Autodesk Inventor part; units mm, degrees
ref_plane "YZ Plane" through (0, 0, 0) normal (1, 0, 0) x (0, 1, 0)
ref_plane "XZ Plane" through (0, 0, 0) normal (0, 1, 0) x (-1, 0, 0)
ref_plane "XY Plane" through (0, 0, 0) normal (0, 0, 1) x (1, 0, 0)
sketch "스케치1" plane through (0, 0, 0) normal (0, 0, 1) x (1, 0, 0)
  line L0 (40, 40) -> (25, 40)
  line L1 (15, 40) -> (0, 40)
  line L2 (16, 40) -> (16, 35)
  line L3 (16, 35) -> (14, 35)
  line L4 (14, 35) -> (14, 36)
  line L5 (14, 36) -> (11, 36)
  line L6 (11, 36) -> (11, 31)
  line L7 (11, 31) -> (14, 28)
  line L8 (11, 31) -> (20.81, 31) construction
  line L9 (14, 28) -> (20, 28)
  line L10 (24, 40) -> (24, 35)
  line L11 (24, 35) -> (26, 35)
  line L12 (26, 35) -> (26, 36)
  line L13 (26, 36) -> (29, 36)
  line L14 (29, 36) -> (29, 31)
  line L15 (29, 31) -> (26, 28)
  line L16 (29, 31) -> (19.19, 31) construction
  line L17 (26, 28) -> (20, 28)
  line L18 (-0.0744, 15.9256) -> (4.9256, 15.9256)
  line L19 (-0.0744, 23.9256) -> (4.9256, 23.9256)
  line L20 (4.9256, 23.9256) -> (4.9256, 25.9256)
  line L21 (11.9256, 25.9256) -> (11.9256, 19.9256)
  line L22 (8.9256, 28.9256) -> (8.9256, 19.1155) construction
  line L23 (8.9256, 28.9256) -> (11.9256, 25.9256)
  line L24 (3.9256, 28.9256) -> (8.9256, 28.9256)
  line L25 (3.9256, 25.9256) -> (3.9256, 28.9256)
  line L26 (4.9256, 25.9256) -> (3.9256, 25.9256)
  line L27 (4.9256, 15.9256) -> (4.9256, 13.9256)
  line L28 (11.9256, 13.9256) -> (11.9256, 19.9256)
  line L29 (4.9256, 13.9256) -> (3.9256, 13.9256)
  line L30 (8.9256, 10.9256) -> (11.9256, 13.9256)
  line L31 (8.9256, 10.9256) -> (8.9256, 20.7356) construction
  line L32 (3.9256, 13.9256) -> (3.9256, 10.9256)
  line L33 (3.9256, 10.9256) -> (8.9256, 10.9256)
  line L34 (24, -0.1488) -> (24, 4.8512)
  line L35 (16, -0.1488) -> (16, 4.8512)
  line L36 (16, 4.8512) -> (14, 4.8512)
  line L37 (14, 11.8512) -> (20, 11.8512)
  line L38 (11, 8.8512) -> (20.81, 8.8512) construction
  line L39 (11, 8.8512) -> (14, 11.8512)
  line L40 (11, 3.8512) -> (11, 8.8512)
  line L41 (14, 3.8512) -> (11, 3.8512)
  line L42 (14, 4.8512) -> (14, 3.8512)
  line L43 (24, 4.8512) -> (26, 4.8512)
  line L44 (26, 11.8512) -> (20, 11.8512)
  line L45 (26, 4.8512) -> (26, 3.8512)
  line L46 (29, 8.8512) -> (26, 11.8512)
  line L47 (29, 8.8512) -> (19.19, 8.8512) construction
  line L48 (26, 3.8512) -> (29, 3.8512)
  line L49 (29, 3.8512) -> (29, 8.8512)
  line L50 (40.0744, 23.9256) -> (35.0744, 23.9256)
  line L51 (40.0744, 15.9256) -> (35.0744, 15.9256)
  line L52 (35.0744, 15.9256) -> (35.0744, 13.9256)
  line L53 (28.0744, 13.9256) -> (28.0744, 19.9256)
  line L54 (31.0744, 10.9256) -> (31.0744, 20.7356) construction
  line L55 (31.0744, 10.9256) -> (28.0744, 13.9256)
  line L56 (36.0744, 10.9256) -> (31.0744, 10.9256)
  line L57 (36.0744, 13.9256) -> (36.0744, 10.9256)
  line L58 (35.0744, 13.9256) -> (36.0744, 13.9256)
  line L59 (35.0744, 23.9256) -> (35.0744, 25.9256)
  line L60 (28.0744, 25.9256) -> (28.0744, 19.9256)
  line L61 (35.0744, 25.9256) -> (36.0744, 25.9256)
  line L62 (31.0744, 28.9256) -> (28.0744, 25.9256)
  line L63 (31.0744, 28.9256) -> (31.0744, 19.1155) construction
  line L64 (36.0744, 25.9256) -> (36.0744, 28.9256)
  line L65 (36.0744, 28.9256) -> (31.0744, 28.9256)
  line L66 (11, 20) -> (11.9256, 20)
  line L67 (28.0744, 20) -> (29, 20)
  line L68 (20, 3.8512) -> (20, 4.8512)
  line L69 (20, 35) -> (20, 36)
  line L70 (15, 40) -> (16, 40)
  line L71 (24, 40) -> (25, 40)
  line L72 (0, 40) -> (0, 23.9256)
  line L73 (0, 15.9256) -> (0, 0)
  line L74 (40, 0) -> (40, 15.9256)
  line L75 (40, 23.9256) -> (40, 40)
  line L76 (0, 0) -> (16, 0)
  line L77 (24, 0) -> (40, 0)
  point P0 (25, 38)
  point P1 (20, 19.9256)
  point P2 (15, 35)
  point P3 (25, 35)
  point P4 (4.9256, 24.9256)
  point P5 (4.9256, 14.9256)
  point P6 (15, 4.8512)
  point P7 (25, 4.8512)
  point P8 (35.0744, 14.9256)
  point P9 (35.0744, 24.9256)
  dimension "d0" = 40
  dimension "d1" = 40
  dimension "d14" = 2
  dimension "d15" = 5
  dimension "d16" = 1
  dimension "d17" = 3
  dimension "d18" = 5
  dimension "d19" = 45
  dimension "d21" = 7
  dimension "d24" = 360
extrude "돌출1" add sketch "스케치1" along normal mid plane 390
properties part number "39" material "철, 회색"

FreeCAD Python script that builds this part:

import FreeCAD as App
import Part
import Sketcher

V = App.Vector
Q = App.Units.Quantity

doc = App.newDocument("Part")
params = doc.addObject("Spreadsheet::Sheet", "Params")
for row, (alias, value) in enumerate([
    ("sketch1_width", "2 mm"),
    ("sketch1_width2", "3 mm"),
    ("sketch1_width3", "1 mm"),
    ("sketch1_width4", "5 mm"),
    ("sketch1_width5", "16 mm"),
    ("pad1_length", "390 mm"),
], start=1):
    params.set(f"A{row}", alias)
    params.set(f"B{row}", "=" + value)
    params.setAlias(f"B{row}", alias)

body = doc.addObject("PartDesign::Body", "Body")

sketch1 = body.newObject("Sketcher::SketchObject", "Sketch")
sketch1.AttachmentSupport = (doc.getObject("XY_Plane"), [""])
sketch1.MapMode = "FlatFace"
sketch1.addGeometry([
    Part.LineSegment(V(40, 23.9, 0), V(40, 40, 0)),
    Part.LineSegment(V(40, 40, 0), V(24, 40, 0)),
    Part.LineSegment(V(24, 40, 0), V(24, 35, 0)),
    Part.LineSegment(V(24, 35, 0), V(26, 35, 0)),
    Part.LineSegment(V(26, 35, 0), V(26, 36, 0)),
    Part.LineSegment(V(26, 36, 0), V(29, 36, 0)),
    Part.LineSegment(V(29, 36, 0), V(29, 31, 0)),
    Part.LineSegment(V(29, 31, 0), V(26, 28, 0)),
    Part.LineSegment(V(26, 28, 0), V(14, 28, 0)),
    Part.LineSegment(V(14, 28, 0), V(11, 31, 0)),
    Part.LineSegment(V(11, 31, 0), V(11, 36, 0)),
    Part.LineSegment(V(11, 36, 0), V(14, 36, 0)),
    Part.LineSegment(V(14, 36, 0), V(14, 35, 0)),
    Part.LineSegment(V(14, 35, 0), V(16, 35, 0)),
    Part.LineSegment(V(16, 35, 0), V(16, 40, 0)),
    Part.LineSegment(V(16, 40, 0), V(0, 40, 0)),
    Part.LineSegment(V(0, 40, 0), V(0, 23.9, 0)),
    Part.LineSegment(V(0, 23.9, 0), V(4.9, 23.9, 0)),
    Part.LineSegment(V(4.9, 23.9, 0), V(4.9, 25.9, 0)),
    Part.LineSegment(V(4.9, 25.9, 0), V(3.9, 25.9, 0)),
    Part.LineSegment(V(3.9, 25.9, 0), V(3.9, 28.9, 0)),
    Part.LineSegment(V(3.9, 28.9, 0), V(8.9, 28.9, 0)),
    Part.LineSegment(V(8.9, 28.9, 0), V(11.9, 25.9, 0)),
    Part.LineSegment(V(11.9, 25.9, 0), V(11.9, 13.9, 0)),
    Part.LineSegment(V(11.9, 13.9, 0), V(8.9, 10.9, 0)),
    Part.LineSegment(V(8.9, 10.9, 0), V(3.9, 10.9, 0)),
    Part.LineSegment(V(3.9, 10.9, 0), V(3.9, 13.9, 0)),
    Part.LineSegment(V(3.9, 13.9, 0), V(4.9, 13.9, 0)),
    Part.LineSegment(V(4.9, 13.9, 0), V(4.9, 15.9, 0)),
    Part.LineSegment(V(4.9, 15.9, 0), V(0, 15.9, 0)),
    Part.LineSegment(V(0, 15.9, 0), V(0, 0, 0)),
    Part.LineSegment(V(0, 0, 0), V(16, 0, 0)),
    Part.LineSegment(V(16, 0, 0), V(16, 4.9, 0)),
    Part.LineSegment(V(16, 4.9, 0), V(14, 4.9, 0)),
    Part.LineSegment(V(14, 4.9, 0), V(14, 3.9, 0)),
    Part.LineSegment(V(14, 3.9, 0), V(11, 3.9, 0)),
    Part.LineSegment(V(11, 3.9, 0), V(11, 8.9, 0)),
    Part.LineSegment(V(11, 8.9, 0), V(14, 11.9, 0)),
    Part.LineSegment(V(14, 11.9, 0), V(26, 11.9, 0)),
    Part.LineSegment(V(26, 11.9, 0), V(29, 8.9, 0)),
    Part.LineSegment(V(29, 8.9, 0), V(29, 3.9, 0)),
    Part.LineSegment(V(29, 3.9, 0), V(26, 3.9, 0)),
    Part.LineSegment(V(26, 3.9, 0), V(26, 4.9, 0)),
    Part.LineSegment(V(26, 4.9, 0), V(24, 4.9, 0)),
    Part.LineSegment(V(24, 4.9, 0), V(24, 0, 0)),
    Part.LineSegment(V(24, 0, 0), V(40, 0, 0)),
    Part.LineSegment(V(40, 0, 0), V(40, 15.9, 0)),
    Part.LineSegment(V(40, 15.9, 0), V(35.1, 15.9, 0)),
    Part.LineSegment(V(35.1, 15.9, 0), V(35.1, 13.9, 0)),
    Part.LineSegment(V(35.1, 13.9, 0), V(36.1, 13.9, 0)),
    Part.LineSegment(V(36.1, 13.9, 0), V(36.1, 10.9, 0)),
    Part.LineSegment(V(36.1, 10.9, 0), V(31.1, 10.9, 0)),
    Part.LineSegment(V(31.1, 10.9, 0), V(28.1, 13.9, 0)),
    Part.LineSegment(V(28.1, 13.9, 0), V(28.1, 25.9, 0)),
    Part.LineSegment(V(28.1, 25.9, 0), V(31.1, 28.9, 0)),
    Part.LineSegment(V(31.1, 28.9, 0), V(36.1, 28.9, 0)),
    Part.LineSegment(V(36.1, 28.9, 0), V(36.1, 25.9, 0)),
    Part.LineSegment(V(36.1, 25.9, 0), V(35.1, 25.9, 0)),
    Part.LineSegment(V(35.1, 25.9, 0), V(35.1, 23.9, 0)),
    Part.LineSegment(V(35.1, 23.9, 0), V(40, 23.9, 0)),
], False)
sketch1.addConstraint([
    Sketcher.Constraint("Coincident", 0, 2, 1, 1),
    Sketcher.Constraint("Coincident", 1, 2, 2, 1),
    Sketcher.Constraint("Coincident", 2, 2, 3, 1),
    Sketcher.Constraint("Coincident", 3, 2, 4, 1),
    Sketcher.Constraint("Coincident", 4, 2, 5, 1),
    Sketcher.Constraint("Coincident", 5, 2, 6, 1),
    Sketcher.Constraint("Coincident", 6, 2, 7, 1),
    Sketcher.Constraint("Coincident", 7, 2, 8, 1),
    Sketcher.Constraint("Coincident", 8, 2, 9, 1),
    Sketcher.Constraint("Coincident", 9, 2, 10, 1),
    Sketcher.Constraint("Coincident", 10, 2, 11, 1),
    Sketcher.Constraint("Coincident", 11, 2, 12, 1),
    Sketcher.Constraint("Coincident", 12, 2, 13, 1),
    Sketcher.Constraint("Coincident", 13, 2, 14, 1),
    Sketcher.Constraint("Coincident", 14, 2, 15, 1),
    Sketcher.Constraint("Coincident", 15, 2, 16, 1),
    Sketcher.Constraint("Coincident", 16, 2, 17, 1),
    Sketcher.Constraint("Coincident", 17, 2, 18, 1),
    Sketcher.Constraint("Coincident", 18, 2, 19, 1),
    Sketcher.Constraint("Coincident", 19, 2, 20, 1),
    Sketcher.Constraint("Coincident", 20, 2, 21, 1),
    Sketcher.Constraint("Coincident", 21, 2, 22, 1),
    Sketcher.Constraint("Coincident", 22, 2, 23, 1),
    Sketcher.Constraint("Coincident", 23, 2, 24, 1),
    Sketcher.Constraint("Coincident", 24, 2, 25, 1),
    Sketcher.Constraint("Coincident", 25, 2, 26, 1),
    Sketcher.Constraint("Coincident", 26, 2, 27, 1),
    Sketcher.Constraint("Coincident", 27, 2, 28, 1),
    Sketcher.Constraint("Coincident", 28, 2, 29, 1),
    Sketcher.Constraint("Coincident", 29, 2, 30, 1),
    Sketcher.Constraint("Coincident", 30, 2, 31, 1),
    Sketcher.Constraint("Coincident", 31, 2, 32, 1),
    Sketcher.Constraint("Coincident", 32, 2, 33, 1),
    Sketcher.Constraint("Coincident", 33, 2, 34, 1),
    Sketcher.Constraint("Coincident", 34, 2, 35, 1),
    Sketcher.Constraint("Coincident", 35, 2, 36, 1),
    Sketcher.Constraint("Coincident", 36, 2, 37, 1),
    Sketcher.Constraint("Coincident", 37, 2, 38, 1),
    Sketcher.Constraint("Coincident", 38, 2, 39, 1),
    Sketcher.Constraint("Coincident", 39, 2, 40, 1),
    Sketcher.Constraint("Coincident", 40, 2, 41, 1),
    Sketcher.Constraint("Coincident", 41, 2, 42, 1),
    Sketcher.Constraint("Coincident", 42, 2, 43, 1),
    Sketcher.Constraint("Coincident", 43, 2, 44, 1),
    Sketcher.Constraint("Coincident", 44, 2, 45, 1),
    Sketcher.Constraint("Coincident", 45, 2, 46, 1),
    Sketcher.Constraint("Coincident", 46, 2, 47, 1),
    Sketcher.Constraint("Coincident", 47, 2, 48, 1),
    Sketcher.Constraint("Coincident", 48, 2, 49, 1),
    Sketcher.Constraint("Coincident", 49, 2, 50, 1),
    Sketcher.Constraint("Coincident", 50, 2, 51, 1),
    Sketcher.Constraint("Coincident", 51, 2, 52, 1),
    Sketcher.Constraint("Coincident", 52, 2, 53, 1),
    Sketcher.Constraint("Coincident", 53, 2, 54, 1),
    Sketcher.Constraint("Coincident", 54, 2, 55, 1),
    Sketcher.Constraint("Coincident", 55, 2, 56, 1),
    Sketcher.Constraint("Coincident", 56, 2, 57, 1),
    Sketcher.Constraint("Coincident", 57, 2, 58, 1),
    Sketcher.Constraint("Coincident", 58, 2, 59, 1),
    Sketcher.Constraint("Coincident", 59, 2, 0, 1),
    Sketcher.Constraint("Vertical", 0),
    Sketcher.Constraint("Horizontal", 1),
    Sketcher.Constraint("Vertical", 2),
    Sketcher.Constraint("Horizontal", 3),
    Sketcher.Constraint("Vertical", 4),
    Sketcher.Constraint("Horizontal", 5),
    Sketcher.Constraint("Vertical", 6),
    Sketcher.Constraint("Horizontal", 8),
    Sketcher.Constraint("Vertical", 10),
    Sketcher.Constraint("Horizontal", 11),
    Sketcher.Constraint("Vertical", 12),
    Sketcher.Constraint("Horizontal", 13),
    Sketcher.Constraint("Vertical", 14),
    Sketcher.Constraint("Horizontal", 15),
    Sketcher.Constraint("Vertical", 16),
    Sketcher.Constraint("Horizontal", 17),
    Sketcher.Constraint("Vertical", 18),
    Sketcher.Constraint("Horizontal", 19),
    Sketcher.Constraint("Vertical", 20),
    Sketcher.Constraint("Horizontal", 21),
    Sketcher.Constraint("Vertical", 23),
    Sketcher.Constraint("Horizontal", 25),
    Sketcher.Constraint("Vertical", 26),
    Sketcher.Constraint("Horizontal", 27),
    Sketcher.Constraint("Vertical", 28),
    Sketcher.Constraint("Horizontal", 29),
    Sketcher.Constraint("Vertical", 30),
    Sketcher.Constraint("Horizontal", 31),
    Sketcher.Constraint("Vertical", 32),
    Sketcher.Constraint("Horizontal", 33),
    Sketcher.Constraint("Vertical", 34),
    Sketcher.Constraint("Horizontal", 35),
    Sketcher.Constraint("Vertical", 36),
    Sketcher.Constraint("Horizontal", 38),
    Sketcher.Constraint("Vertical", 40),
    Sketcher.Constraint("Horizontal", 41),
    Sketcher.Constraint("Vertical", 42),
    Sketcher.Constraint("Horizontal", 43),
    Sketcher.Constraint("Vertical", 44),
    Sketcher.Constraint("Horizontal", 45),
    Sketcher.Constraint("Vertical", 46),
    Sketcher.Constraint("Horizontal", 47),
    Sketcher.Constraint("Vertical", 48),
    Sketcher.Constraint("Horizontal", 49),
    Sketcher.Constraint("Vertical", 50),
    Sketcher.Constraint("Horizontal", 51),
    Sketcher.Constraint("Vertical", 53),
    Sketcher.Constraint("Horizontal", 55),
    Sketcher.Constraint("Vertical", 56),
    Sketcher.Constraint("Horizontal", 57),
    Sketcher.Constraint("Vertical", 58),
    Sketcher.Constraint("Horizontal", 59),
    Sketcher.Constraint("Coincident", 30, 2, -1, 1),
    Sketcher.Constraint("PointOnObject", 15, 2, -2),
    Sketcher.Constraint("PointOnObject", 44, 2, -1),
    Sketcher.Constraint("Perpendicular", 7, 9),
    Sketcher.Constraint("Parallel", 9, 22),
    Sketcher.Constraint("Perpendicular", 22, 24),
    Sketcher.Constraint("Parallel", 24, 37),
    Sketcher.Constraint("Perpendicular", 37, 39),
    Sketcher.Constraint("Parallel", 39, 52),
    Sketcher.Constraint("Perpendicular", 52, 54),
    Sketcher.Constraint("Horizontal", 6, 2, 9, 2),
    Sketcher.Constraint("Horizontal", 5, 2, 10, 2),
    Sketcher.Constraint("Horizontal", 3, 2, 12, 2),
    Sketcher.Constraint("Horizontal", 1, 2, 14, 2),
    Sketcher.Constraint("Horizontal", 19, 2, 22, 2),
    Sketcher.Constraint("Horizontal", 23, 2, 26, 2),
    Sketcher.Constraint("Horizontal", 36, 2, 39, 2),
    Sketcher.Constraint("Horizontal", 35, 2, 40, 2),
    Sketcher.Constraint("Horizontal", 33, 2, 42, 2),
    Sketcher.Constraint("Horizontal", 29, 2, 46, 2),
    Sketcher.Constraint("Horizontal", 27, 2, 48, 2),
    Sketcher.Constraint("Horizontal", 25, 2, 50, 2),
    Sketcher.Constraint("Horizontal", 49, 2, 52, 2),
    Sketcher.Constraint("Horizontal", 22, 2, 53, 2),
    Sketcher.Constraint("Horizontal", 21, 2, 54, 2),
    Sketcher.Constraint("Horizontal", 53, 2, 56, 2),
    Sketcher.Constraint("Horizontal", 17, 2, 58, 2),
    Sketcher.Constraint("Vertical", 4, 2, 7, 2),
    Sketcher.Constraint("Vertical", 8, 2, 11, 2),
    Sketcher.Constraint("Vertical", 21, 2, 24, 2),
    Sketcher.Constraint("Vertical", 20, 2, 25, 2),
    Sketcher.Constraint("Vertical", 18, 2, 27, 2),
    Sketcher.Constraint("Vertical", 14, 2, 31, 2),
    Sketcher.Constraint("Vertical", 12, 2, 33, 2),
    Sketcher.Constraint("Vertical", 10, 2, 35, 2),
    Sketcher.Constraint("Vertical", 34, 2, 37, 2),
    Sketcher.Constraint("Vertical", 7, 2, 38, 2),
    Sketcher.Constraint("Vertical", 6, 2, 39, 2),
    Sketcher.Constraint("Vertical", 38, 2, 41, 2),
    Sketcher.Constraint("Vertical", 2, 2, 43, 2),
    Sketcher.Constraint("Vertical", 0, 2, 45, 2),
    Sketcher.Constraint("Vertical", 50, 2, 55, 2),
    Sketcher.Constraint("Vertical", 48, 2, 57, 2),
    Sketcher.Constraint("Equal", 3, 13),
    Sketcher.Constraint("Equal", 1, 15),
    Sketcher.Constraint("Equal", 29, 47),
    Sketcher.Constraint("Equal", 27, 49),
    Sketcher.Constraint("Equal", 25, 51),
    Sketcher.Constraint("Equal", 55, 2),
    Sketcher.Constraint("Equal", 57, 4),
    Sketcher.Constraint("Equal", 2, 6),
    Sketcher.Constraint("Equal", 43, 18),
    Sketcher.Constraint("Equal", 41, 20),
    Sketcher.Constraint("Equal", 38, 23),
    Sketcher.Constraint("Equal", 18, 28),
    Sketcher.Constraint("Equal", 12, 34),
    Sketcher.Constraint("Equal", 14, 36),
    Sketcher.Constraint("DistanceX", 3, 1, 3, 2, Q("2 mm")),
    Sketcher.Constraint("DistanceX", 5, 1, 5, 2, Q("3 mm")),
    Sketcher.Constraint("DistanceX", 19, 2, 19, 1, Q("1 mm")),
    Sketcher.Constraint("DistanceX", 21, 1, 21, 2, Q("5 mm")),
    Sketcher.Constraint("DistanceX", -1, 1, 0, 2, Q("40 mm")),
    Sketcher.Constraint("DistanceY", -1, 1, 0, 2, Q("40 mm")),
    Sketcher.Constraint("DistanceX", 1, 2, 1, 1, Q("16 mm")),
    Sketcher.Constraint("DistanceX", 17, 1, 17, 2, Q("4.9256 mm")),
    Sketcher.Constraint("DistanceY", 0, 1, 0, 2, Q("16.0744 mm")),
    Sketcher.Constraint("DistanceY", 32, 1, 32, 2, Q("4.8512 mm")),
])
sketch1.setExpression("Constraints[169]", "Params.sketch1_width")
sketch1.setExpression("Constraints[170]", "Params.sketch1_width2")
sketch1.setExpression("Constraints[171]", "Params.sketch1_width3")
sketch1.setExpression("Constraints[172]", "Params.sketch1_width4")
sketch1.setExpression("Constraints[175]", "Params.sketch1_width5")
pad1 = body.newObject("PartDesign::Pad", "Pad")
pad1.Profile = sketch1
pad1.setExpression("Length", "Params.pad1_length")
pad1.Midplane = True

doc.recompute()
